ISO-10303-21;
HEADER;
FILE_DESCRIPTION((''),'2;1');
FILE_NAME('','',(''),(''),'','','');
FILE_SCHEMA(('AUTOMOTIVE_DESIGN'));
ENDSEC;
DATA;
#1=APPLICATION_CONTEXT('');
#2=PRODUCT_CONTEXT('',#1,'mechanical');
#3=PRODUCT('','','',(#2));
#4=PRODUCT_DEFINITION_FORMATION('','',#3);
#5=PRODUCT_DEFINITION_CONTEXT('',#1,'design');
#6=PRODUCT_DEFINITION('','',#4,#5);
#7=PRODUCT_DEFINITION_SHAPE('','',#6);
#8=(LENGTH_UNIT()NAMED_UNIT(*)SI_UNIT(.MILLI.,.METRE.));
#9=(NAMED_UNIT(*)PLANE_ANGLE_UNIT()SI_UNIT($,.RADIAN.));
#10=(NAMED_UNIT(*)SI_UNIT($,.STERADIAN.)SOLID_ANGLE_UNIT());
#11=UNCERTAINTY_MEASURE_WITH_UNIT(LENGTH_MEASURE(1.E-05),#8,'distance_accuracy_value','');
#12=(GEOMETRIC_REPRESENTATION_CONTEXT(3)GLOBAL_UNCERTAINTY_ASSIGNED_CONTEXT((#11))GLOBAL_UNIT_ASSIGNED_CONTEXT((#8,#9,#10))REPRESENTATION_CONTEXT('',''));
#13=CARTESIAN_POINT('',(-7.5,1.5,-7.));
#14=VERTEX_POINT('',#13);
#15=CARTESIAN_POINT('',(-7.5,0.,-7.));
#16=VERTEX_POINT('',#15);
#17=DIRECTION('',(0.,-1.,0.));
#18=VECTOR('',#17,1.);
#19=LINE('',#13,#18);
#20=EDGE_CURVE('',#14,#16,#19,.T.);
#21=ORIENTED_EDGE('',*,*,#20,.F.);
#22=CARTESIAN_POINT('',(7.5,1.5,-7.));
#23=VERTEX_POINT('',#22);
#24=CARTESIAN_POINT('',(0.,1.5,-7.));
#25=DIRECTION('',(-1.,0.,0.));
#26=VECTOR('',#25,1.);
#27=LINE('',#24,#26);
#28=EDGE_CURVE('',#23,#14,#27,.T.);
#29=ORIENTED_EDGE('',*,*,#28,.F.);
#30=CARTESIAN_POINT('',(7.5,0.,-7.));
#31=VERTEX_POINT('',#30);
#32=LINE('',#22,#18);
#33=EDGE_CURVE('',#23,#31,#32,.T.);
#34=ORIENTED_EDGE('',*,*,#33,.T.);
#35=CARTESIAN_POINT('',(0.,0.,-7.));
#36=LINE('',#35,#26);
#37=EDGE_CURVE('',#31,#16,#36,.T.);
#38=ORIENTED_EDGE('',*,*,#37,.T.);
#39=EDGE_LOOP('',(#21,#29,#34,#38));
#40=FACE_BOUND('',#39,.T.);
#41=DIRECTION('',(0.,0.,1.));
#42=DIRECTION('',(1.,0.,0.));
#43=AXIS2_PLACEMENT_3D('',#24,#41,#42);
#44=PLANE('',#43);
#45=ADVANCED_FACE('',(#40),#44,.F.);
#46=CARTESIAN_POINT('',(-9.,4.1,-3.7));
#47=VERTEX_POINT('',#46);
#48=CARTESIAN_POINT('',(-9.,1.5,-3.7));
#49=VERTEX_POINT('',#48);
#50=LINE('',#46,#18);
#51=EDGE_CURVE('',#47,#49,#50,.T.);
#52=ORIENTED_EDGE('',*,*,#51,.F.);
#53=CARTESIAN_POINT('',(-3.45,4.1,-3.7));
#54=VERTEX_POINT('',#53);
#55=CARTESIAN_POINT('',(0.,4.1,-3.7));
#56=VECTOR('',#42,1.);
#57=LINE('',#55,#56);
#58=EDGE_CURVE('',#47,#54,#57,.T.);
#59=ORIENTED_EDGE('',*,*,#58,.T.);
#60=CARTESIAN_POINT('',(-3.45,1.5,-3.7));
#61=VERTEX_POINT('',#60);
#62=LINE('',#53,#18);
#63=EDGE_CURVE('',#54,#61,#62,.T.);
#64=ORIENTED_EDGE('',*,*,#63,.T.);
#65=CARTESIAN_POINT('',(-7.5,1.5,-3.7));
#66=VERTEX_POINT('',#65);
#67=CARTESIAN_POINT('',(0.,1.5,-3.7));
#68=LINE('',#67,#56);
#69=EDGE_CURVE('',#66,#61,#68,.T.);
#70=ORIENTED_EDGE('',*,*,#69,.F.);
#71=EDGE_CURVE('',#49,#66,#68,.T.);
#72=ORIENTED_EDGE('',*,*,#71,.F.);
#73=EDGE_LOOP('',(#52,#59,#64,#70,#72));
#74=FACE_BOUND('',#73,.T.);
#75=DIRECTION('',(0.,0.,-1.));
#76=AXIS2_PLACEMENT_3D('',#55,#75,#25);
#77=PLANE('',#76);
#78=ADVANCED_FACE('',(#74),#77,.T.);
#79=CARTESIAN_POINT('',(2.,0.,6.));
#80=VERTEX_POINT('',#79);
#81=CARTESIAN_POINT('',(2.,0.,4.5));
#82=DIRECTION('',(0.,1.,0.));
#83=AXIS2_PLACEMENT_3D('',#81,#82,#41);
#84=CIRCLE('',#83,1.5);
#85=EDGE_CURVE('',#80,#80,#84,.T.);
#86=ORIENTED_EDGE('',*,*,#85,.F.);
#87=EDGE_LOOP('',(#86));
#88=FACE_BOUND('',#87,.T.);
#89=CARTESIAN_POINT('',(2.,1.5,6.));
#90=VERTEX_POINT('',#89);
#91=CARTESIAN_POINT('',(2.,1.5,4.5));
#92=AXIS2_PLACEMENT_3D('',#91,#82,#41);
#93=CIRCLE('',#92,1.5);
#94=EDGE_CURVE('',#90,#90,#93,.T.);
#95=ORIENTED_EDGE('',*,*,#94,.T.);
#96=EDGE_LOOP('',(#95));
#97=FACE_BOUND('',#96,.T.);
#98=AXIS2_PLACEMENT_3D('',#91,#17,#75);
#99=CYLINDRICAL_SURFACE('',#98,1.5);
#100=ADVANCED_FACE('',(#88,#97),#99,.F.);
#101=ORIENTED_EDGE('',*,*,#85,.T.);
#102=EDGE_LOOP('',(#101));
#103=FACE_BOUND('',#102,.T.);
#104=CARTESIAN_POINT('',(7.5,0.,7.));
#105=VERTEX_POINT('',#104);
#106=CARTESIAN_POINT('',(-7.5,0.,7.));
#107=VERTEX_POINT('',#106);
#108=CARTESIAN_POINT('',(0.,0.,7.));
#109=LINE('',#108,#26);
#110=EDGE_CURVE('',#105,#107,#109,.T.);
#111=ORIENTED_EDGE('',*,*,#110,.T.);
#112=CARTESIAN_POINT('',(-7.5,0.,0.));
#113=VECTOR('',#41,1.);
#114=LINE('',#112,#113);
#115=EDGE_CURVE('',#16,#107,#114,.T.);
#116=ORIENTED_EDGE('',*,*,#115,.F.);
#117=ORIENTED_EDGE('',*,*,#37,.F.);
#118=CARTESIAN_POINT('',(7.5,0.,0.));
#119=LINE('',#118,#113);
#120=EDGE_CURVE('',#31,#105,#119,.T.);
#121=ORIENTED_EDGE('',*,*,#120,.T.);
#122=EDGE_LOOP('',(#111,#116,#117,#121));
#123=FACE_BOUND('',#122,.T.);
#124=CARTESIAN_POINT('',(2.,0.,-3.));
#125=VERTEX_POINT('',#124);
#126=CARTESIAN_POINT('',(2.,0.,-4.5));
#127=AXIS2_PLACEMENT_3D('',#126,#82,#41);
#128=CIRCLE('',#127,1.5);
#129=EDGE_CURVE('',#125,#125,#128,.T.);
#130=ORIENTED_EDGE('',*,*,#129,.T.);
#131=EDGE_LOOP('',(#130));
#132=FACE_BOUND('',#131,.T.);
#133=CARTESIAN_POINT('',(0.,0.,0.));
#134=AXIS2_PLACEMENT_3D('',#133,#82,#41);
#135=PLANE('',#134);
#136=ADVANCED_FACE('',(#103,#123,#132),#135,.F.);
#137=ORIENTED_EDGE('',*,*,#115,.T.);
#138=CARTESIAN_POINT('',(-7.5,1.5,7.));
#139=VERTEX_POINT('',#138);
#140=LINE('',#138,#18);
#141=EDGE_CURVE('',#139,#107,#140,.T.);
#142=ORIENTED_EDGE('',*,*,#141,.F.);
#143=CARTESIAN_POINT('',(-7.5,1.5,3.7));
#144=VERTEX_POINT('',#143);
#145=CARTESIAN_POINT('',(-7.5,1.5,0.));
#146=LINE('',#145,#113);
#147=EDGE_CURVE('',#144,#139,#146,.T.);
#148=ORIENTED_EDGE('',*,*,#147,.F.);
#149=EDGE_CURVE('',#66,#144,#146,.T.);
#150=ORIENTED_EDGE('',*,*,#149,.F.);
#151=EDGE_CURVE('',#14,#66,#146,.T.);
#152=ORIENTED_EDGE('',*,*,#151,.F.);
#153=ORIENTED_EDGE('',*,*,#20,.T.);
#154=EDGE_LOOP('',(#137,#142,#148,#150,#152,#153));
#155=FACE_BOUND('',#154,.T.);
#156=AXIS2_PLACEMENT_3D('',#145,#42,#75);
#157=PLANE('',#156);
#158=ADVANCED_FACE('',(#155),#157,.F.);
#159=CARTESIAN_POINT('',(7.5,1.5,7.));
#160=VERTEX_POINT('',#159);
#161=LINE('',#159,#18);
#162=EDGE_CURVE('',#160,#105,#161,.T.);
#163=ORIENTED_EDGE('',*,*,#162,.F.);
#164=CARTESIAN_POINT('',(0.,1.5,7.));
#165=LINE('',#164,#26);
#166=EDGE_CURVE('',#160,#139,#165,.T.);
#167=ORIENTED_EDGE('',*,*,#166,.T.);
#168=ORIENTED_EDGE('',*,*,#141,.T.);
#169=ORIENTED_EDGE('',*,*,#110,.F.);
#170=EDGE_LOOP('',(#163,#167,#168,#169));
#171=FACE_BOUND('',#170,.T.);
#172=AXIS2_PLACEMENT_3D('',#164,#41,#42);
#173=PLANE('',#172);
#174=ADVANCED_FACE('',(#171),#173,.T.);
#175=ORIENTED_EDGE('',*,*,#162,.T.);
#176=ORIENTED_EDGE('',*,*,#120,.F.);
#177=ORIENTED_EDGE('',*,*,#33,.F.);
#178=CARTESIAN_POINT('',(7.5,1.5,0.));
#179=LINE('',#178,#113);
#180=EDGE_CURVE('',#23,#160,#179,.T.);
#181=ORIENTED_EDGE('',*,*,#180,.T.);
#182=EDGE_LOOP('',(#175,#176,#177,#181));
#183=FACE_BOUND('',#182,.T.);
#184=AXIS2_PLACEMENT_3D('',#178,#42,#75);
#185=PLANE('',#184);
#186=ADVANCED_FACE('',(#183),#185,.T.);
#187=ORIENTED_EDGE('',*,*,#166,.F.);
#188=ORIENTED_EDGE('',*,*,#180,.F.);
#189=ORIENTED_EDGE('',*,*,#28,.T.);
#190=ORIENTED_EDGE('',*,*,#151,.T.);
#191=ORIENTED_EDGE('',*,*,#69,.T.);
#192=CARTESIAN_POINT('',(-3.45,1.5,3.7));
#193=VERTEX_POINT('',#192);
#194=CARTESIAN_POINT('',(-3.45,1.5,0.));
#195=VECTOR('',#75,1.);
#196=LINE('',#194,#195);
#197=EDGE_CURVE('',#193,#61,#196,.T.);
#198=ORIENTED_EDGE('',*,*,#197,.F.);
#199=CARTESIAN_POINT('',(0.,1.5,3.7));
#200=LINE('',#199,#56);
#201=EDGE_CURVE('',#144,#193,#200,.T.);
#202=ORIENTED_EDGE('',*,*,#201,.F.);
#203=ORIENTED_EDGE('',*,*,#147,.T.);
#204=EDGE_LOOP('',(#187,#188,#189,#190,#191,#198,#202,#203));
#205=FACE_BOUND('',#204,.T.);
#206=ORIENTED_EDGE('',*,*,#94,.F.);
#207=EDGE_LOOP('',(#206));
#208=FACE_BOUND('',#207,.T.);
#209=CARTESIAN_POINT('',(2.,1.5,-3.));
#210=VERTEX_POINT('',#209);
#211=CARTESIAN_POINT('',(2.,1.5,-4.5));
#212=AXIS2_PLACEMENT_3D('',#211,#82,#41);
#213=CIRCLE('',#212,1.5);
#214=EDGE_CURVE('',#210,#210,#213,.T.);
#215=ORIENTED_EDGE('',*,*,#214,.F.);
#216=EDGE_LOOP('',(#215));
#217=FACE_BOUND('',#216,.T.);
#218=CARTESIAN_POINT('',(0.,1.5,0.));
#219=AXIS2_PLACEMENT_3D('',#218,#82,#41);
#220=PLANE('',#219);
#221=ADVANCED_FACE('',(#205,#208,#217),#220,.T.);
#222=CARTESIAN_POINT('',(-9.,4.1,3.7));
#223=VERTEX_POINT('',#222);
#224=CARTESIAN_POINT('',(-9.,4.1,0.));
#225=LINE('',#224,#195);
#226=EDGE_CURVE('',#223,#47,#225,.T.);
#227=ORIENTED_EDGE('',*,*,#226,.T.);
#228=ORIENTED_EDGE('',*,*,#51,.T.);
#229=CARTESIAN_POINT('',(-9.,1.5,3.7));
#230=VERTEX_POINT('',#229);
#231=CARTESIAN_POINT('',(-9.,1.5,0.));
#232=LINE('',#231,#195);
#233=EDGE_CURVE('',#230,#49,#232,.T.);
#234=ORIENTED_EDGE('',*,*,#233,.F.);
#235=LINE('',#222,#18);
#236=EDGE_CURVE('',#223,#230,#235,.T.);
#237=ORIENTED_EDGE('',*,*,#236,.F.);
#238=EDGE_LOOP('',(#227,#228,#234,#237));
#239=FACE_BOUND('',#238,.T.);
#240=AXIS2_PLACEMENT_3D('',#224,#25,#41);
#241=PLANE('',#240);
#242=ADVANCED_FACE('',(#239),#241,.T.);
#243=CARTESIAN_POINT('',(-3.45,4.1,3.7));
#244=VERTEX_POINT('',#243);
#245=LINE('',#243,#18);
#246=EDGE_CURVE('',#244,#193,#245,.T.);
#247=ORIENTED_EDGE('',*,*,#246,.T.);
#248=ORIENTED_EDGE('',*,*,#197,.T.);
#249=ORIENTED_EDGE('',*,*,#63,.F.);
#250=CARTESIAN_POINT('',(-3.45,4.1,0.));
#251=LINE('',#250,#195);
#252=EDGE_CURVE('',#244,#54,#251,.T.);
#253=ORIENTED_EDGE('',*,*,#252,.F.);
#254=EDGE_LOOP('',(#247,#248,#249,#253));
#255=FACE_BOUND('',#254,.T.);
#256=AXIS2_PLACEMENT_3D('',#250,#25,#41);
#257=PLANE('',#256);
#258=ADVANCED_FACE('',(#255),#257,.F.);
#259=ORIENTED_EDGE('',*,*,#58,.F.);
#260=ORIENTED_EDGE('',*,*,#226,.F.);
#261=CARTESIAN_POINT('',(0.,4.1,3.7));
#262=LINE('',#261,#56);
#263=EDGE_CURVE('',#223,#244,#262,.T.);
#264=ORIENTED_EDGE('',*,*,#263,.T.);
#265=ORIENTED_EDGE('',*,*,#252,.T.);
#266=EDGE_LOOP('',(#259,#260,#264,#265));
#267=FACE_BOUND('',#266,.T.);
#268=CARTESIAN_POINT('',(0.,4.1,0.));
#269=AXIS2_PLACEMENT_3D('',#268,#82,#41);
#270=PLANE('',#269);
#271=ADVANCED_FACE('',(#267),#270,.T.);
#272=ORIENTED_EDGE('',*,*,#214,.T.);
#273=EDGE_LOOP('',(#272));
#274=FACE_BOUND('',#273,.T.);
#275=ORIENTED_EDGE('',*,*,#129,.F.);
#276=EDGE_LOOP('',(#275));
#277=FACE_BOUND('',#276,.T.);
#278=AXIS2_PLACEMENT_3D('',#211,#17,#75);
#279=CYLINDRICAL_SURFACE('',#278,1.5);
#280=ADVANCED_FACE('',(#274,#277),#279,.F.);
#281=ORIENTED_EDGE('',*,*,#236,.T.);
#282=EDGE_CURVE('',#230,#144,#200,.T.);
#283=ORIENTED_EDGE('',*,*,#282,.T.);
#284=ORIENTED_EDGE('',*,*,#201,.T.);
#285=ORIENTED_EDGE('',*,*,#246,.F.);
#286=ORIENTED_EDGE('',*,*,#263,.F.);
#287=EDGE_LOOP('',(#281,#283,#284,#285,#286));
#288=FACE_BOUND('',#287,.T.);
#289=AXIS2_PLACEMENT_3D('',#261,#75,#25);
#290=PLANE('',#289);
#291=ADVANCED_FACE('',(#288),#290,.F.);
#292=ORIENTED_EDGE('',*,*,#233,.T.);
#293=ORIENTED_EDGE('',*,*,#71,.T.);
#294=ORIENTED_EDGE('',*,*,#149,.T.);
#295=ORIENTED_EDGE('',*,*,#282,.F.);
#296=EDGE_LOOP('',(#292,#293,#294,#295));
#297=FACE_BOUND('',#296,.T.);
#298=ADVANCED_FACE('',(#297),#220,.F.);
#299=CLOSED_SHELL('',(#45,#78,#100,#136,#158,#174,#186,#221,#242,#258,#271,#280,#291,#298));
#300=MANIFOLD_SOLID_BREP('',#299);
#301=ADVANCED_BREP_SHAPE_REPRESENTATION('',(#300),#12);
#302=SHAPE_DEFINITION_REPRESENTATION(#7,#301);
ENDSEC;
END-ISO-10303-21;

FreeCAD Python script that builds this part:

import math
import FreeCAD as App
import Part
import Sketcher

doc = App.newDocument("Part")
body = doc.addObject("PartDesign::Body", "Body")

# Sketch on XZ plane
sketch1 = body.newObject("Sketcher::SketchObject", "Sketch")
sketch1.AttachmentSupport = (doc.getObject("XZ_Plane"), [""])
sketch1.MapMode = "FlatFace"
sketch1.addGeometry([
    Part.LineSegment(App.Vector(7.5, 7, 0), App.Vector(7.5, -7, 0)),  # 0
    Part.LineSegment(App.Vector(7.5, -7, 0), App.Vector(-7.5, -7, 0)),  # 1
    Part.LineSegment(App.Vector(-7.5, -7, 0), App.Vector(-7.5, 7, 0)),  # 2
    Part.LineSegment(App.Vector(-7.5, 7, 0), App.Vector(7.5, 7, 0)),  # 3
    Part.ArcOfCircle(Part.Circle(App.Vector(2, -4.5, 0), App.Vector(0, 0, 1), 1.5), math.radians(-90), math.radians(0)),  # 4
    Part.ArcOfCircle(Part.Circle(App.Vector(2, -4.5, 0), App.Vector(0, 0, 1), 1.5), math.radians(0), math.radians(90)),  # 5
    Part.ArcOfCircle(Part.Circle(App.Vector(2, -4.5, 0), App.Vector(0, 0, 1), 1.5), math.radians(90), math.radians(270)),  # 6
    Part.ArcOfCircle(Part.Circle(App.Vector(2, 4.5, 0), App.Vector(0, 0, 1), 1.5), math.radians(-90), math.radians(0)),  # 7
    Part.ArcOfCircle(Part.Circle(App.Vector(2, 4.5, 0), App.Vector(0, 0, 1), 1.5), math.radians(0), math.radians(90)),  # 8
    Part.ArcOfCircle(Part.Circle(App.Vector(2, 4.5, 0), App.Vector(0, 0, 1), 1.5), math.radians(90), math.radians(270)),  # 9
], False)
sketch1.addConstraint([
    Sketcher.Constraint("Coincident", 0, 2, 1, 1),
    Sketcher.Constraint("Coincident", 1, 2, 2, 1),
    Sketcher.Constraint("Coincident", 2, 2, 3, 1),
    Sketcher.Constraint("Coincident", 3, 2, 0, 1),
    Sketcher.Constraint("Tangent", 4, 2, 5, 1),
    Sketcher.Constraint("Tangent", 5, 2, 6, 1),
    Sketcher.Constraint("Tangent", 6, 2, 4, 1),
    Sketcher.Constraint("Tangent", 7, 2, 8, 1),
    Sketcher.Constraint("Tangent", 8, 2, 9, 1),
    Sketcher.Constraint("Tangent", 9, 2, 7, 1),
    Sketcher.Constraint("Vertical", 0),
    Sketcher.Constraint("Horizontal", 1),
    Sketcher.Constraint("Vertical", 2),
    Sketcher.Constraint("Horizontal", 3),
    Sketcher.Constraint("Equal", 6, 7),
    Sketcher.Constraint("Symmetric", 0, 2, 2, 2, -1, 1),
    Sketcher.Constraint("Symmetric", 4, 3, 7, 3, -1),
    Sketcher.Constraint("Horizontal", 6, 3, 4, 2),
    Sketcher.Constraint("Horizontal", 9, 3, 7, 2),
    Sketcher.Constraint("Vertical", 9, 3, 5, 2),
    Sketcher.Constraint("Vertical", 5, 2, 6, 2),
    Sketcher.Constraint("Vertical", 6, 2, 8, 2),
    Sketcher.Constraint("Vertical", 8, 2, 9, 2),
    Sketcher.Constraint("Radius", 4, 1.5),
    Sketcher.Constraint("DistanceX", 1, 2, 1, 1, 15.0),
    Sketcher.Constraint("DistanceY", 0, 2, 0, 1, 14.0),
    Sketcher.Constraint("DistanceX", -1, 1, 4, 3, 2.0),
    Sketcher.Constraint("DistanceY", 5, 2, -1, 1, 3.0),
])
pad1 = body.newObject("PartDesign::Pad", "Pad")
pad1.Profile = sketch1
pad1.Length = 1.5
pad1.Reversed = True

# Sketch on XZ plane
sketch2 = body.newObject("Sketcher::SketchObject", "Sketch001")
sketch2.AttachmentSupport = (doc.getObject("XZ_Plane"), [""])
sketch2.MapMode = "FlatFace"
sketch2.AttachmentOffset = App.Placement(App.Vector(0, 0, -1.5), App.Rotation())
sketch2.addGeometry([
    Part.LineSegment(App.Vector(-9, -3.7, 0), App.Vector(-9, 3.7, 0)),
    Part.LineSegment(App.Vector(-9, 3.7, 0), App.Vector(-3.45, 3.7, 0)),
    Part.LineSegment(App.Vector(-3.45, 3.7, 0), App.Vector(-3.45, -3.7, 0)),
    Part.LineSegment(App.Vector(-3.45, -3.7, 0), App.Vector(-9, -3.7, 0)),
], False)
sketch2.addConstraint([
    Sketcher.Constraint("Coincident", 0, 2, 1, 1),
    Sketcher.Constraint("Coincident", 1, 2, 2, 1),
    Sketcher.Constraint("Coincident", 2, 2, 3, 1),
    Sketcher.Constraint("Coincident", 3, 2, 0, 1),
    Sketcher.Constraint("Vertical", 0),
    Sketcher.Constraint("Horizontal", 1),
    Sketcher.Constraint("Vertical", 2),
    Sketcher.Constraint("Horizontal", 3),
    Sketcher.Constraint("DistanceY", 0, 1, 0, 2, 7.4),
    Sketcher.Constraint("DistanceX", 0, 2, -1, 1, 9.0),
    Sketcher.Constraint("DistanceX", 1, 1, 1, 2, 5.55),
    Sketcher.Constraint("DistanceY", -1, 1, 0, 2, 3.7),
])
pad2 = body.newObject("PartDesign::Pad", "Pad001")
pad2.Profile = sketch2
pad2.Length = 2.6
pad2.Reversed = True

doc.recompute()
